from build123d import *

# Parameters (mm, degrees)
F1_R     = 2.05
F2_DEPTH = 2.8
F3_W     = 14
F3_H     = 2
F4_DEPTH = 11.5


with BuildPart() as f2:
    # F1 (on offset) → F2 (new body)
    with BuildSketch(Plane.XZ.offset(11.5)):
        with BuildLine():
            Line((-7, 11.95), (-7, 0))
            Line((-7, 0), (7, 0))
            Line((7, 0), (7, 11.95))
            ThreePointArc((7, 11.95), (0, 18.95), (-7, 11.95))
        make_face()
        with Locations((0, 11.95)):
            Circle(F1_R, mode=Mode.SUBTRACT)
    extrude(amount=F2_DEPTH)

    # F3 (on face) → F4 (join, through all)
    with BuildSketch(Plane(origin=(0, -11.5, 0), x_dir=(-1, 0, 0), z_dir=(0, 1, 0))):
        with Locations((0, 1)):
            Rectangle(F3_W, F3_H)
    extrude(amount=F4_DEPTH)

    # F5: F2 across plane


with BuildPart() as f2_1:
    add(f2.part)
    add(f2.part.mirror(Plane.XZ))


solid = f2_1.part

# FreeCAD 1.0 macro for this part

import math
import FreeCAD as App
import Part
import Sketcher

V = App.Vector
Q = App.Units.Quantity


def add_polygon(sketch, points):
    """Adds a closed chain of lines whose ends are joined by coincident constraints."""
    first, n = sketch.GeometryCount, len(points)
    for a, b in zip(points, points[1:] + points[:1]):
        sketch.addGeometry(Part.LineSegment(App.Vector(*a, 0), App.Vector(*b, 0)), False)
    for i in range(n):
        sketch.addConstraint(Sketcher.Constraint("Coincident", first + i, 2, first + (i + 1) % n, 1))

doc = App.newDocument("Part")
body = doc.addObject("PartDesign::Body", "Body")

sketch1 = body.newObject("Sketcher::SketchObject", "Sketch")
sketch1.AttachmentSupport = (doc.getObject("XZ_Plane"), [""])
sketch1.MapMode = "FlatFace"
sketch1.AttachmentOffset = App.Placement(V(0, 0, 11.5), App.Rotation())
sketch1.addGeometry([
    Part.LineSegment(V(-7, 11.95, 0), V(-7, 0, 0)),
    Part.LineSegment(V(-7, 0, 0), V(7, 0, 0)),
    Part.LineSegment(V(7, 0, 0), V(7, 11.95, 0)),
    Part.ArcOfCircle(Part.Circle(V(0, 11.95, 0), V(0, 0, 1), 7), math.radians(0), math.radians(180)),
    Part.Circle(V(0, 11.95, 0), V(0, 0, 1), 2.05),
], False)
sketch1.addConstraint([
    Sketcher.Constraint("Coincident", 0, 2, 1, 1),
    Sketcher.Constraint("Coincident", 1, 2, 2, 1),
    Sketcher.Constraint("Tangent", 2, 2, 3, 1),
    Sketcher.Constraint("Tangent", 3, 2, 0, 1),
    Sketcher.Constraint("Vertical", 0),
    Sketcher.Constraint("Horizontal", 1),
    Sketcher.Constraint("Vertical", 2),
    Sketcher.Constraint("Coincident", 4, 3, 3, 3),
    Sketcher.Constraint("Symmetric", 0, 2, 1, 2, -1, 1),
    Sketcher.Constraint("Radius", 3, Q("7 mm")),
    Sketcher.Constraint("Diameter", 4, Q("4.1 mm")),
    Sketcher.Constraint("DistanceY", 0, 2, 0, 1, Q("11.95 mm")),
])
pad1 = body.newObject("PartDesign::Pad", "Pad")
pad1.Profile = sketch1
pad1.Length = 2.8

sketch2 = body.newObject("Sketcher::SketchObject", "Sketch001")
sketch2.AttachmentSupport = (doc.getObject("XZ_Plane"), [""])
sketch2.MapMode = "FlatFace"
sketch2.AttachmentOffset = App.Placement(V(0, 0, 11.5), App.Rotation())
add_polygon(sketch2, [(7, 2), (7, 0), (-7, 0), (-7, 2)])
sketch2.addConstraint([
    Sketcher.Constraint("Vertical", 0),
    Sketcher.Constraint("Horizontal", 1),
    Sketcher.Constraint("Vertical", 2),
    Sketcher.Constraint("Horizontal", 3),
    Sketcher.Constraint("Symmetric", 0, 2, 1, 2, -1, 1),
    Sketcher.Constraint("DistanceX", 1, 2, 1, 1, Q("14 mm")),
    Sketcher.Constraint("DistanceY", 0, 2, 0, 1, Q("2 mm")),
])
pad2 = body.newObject("PartDesign::Pad", "Pad001")
pad2.Profile = sketch2
pad2.Length = 11.5
pad2.Reversed = True
body2 = doc.addObject("PartDesign::Body", "Body001")
doc.recompute()

body2.BaseFeature = body
doc.recompute()

mirroring = doc.addObject("Part::Mirroring", "Mirroring")
mirroring.Source = body
mirroring.Base = V(0, 0, 0)
mirroring.Normal = V(0, -1, 0)
body3 = doc.addObject("PartDesign::Body", "Body002")
body3.BaseFeature = mirroring
boolean = body2.newObject("PartDesign::Boolean", "Boolean")
boolean.Type = "Fuse"
boolean.addObjects([body3])
doc.recompute()
mirroring.Visibility = False

doc.recompute()
